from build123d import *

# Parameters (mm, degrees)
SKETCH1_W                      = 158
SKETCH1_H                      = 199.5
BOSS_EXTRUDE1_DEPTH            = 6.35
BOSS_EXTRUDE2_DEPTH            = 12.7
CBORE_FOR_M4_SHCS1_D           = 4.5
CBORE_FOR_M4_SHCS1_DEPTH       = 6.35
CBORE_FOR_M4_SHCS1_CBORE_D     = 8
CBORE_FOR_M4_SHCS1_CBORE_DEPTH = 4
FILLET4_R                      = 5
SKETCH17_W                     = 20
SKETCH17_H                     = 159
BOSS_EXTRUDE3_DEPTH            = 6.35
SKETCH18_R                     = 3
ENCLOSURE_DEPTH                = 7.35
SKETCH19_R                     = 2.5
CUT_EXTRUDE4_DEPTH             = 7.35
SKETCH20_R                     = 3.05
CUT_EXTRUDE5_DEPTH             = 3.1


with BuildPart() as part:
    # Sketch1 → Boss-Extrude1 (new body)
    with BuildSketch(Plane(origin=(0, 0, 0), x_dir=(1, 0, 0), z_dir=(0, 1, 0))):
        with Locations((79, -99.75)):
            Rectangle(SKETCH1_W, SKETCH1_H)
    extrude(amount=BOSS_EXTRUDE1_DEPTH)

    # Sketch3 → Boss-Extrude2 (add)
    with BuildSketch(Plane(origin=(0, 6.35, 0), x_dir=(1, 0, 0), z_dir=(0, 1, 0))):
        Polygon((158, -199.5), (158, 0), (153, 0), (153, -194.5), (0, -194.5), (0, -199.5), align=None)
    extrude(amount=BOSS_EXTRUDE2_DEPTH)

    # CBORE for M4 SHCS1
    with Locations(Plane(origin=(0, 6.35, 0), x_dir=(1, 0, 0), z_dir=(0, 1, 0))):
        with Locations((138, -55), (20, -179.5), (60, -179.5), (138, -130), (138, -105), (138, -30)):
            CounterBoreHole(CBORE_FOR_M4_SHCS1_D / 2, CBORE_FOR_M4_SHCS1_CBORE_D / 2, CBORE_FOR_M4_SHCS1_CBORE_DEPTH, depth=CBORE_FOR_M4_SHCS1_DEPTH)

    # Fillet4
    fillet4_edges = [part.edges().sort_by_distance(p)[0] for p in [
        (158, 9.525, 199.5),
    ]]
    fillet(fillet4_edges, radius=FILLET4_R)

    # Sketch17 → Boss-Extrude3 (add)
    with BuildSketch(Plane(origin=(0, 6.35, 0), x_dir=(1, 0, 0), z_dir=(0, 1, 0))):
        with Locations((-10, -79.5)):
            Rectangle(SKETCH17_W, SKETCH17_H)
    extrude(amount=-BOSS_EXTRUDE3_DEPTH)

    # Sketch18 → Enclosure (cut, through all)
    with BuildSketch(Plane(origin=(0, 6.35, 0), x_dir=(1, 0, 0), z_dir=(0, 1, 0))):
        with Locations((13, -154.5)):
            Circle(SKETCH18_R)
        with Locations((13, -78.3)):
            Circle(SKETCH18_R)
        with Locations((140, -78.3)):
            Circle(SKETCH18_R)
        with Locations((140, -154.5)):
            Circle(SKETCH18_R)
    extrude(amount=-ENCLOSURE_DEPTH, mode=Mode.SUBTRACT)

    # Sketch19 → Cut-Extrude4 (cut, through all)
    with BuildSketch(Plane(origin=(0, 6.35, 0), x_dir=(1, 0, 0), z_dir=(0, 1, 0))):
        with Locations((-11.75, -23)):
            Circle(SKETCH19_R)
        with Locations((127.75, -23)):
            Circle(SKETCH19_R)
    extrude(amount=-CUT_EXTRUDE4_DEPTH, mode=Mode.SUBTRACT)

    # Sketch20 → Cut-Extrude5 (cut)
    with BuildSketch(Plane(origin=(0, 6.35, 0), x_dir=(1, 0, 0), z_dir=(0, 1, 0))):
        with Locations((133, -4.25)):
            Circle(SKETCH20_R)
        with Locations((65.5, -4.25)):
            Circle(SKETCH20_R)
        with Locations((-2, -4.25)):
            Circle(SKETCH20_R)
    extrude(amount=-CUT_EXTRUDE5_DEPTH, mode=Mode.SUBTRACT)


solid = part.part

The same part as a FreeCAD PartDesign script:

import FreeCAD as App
import Part
import Sketcher


def edges_at(feature, points):
    """Names of the edges that pass closest to the given points."""
    edges = feature.Shape.Edges
    near = lambda p: min(range(len(edges)), key=lambda i: edges[i].distToShape(Part.Vertex(*p))[0])
    return sorted({f"Edge{near(p) + 1}" for p in points})

doc = App.newDocument("Part")
body = doc.addObject("PartDesign::Body", "Body")

# Sketch on XZ plane
sketch1 = body.newObject("Sketcher::SketchObject", "Sketch")
sketch1.AttachmentSupport = (doc.getObject("XZ_Plane"), [""])
sketch1.MapMode = "FlatFace"
sketch1.addGeometry([
    Part.LineSegment(App.Vector(0, 0, 0), App.Vector(0, 199.5, 0)),
    Part.LineSegment(App.Vector(0, 199.5, 0), App.Vector(158, 199.5, 0)),
    Part.LineSegment(App.Vector(158, 199.5, 0), App.Vector(158, 0, 0)),
    Part.LineSegment(App.Vector(158, 0, 0), App.Vector(0, 0, 0)),
], False)
sketch1.addConstraint([
    Sketcher.Constraint("Coincident", 0, 2, 1, 1),
    Sketcher.Constraint("Coincident", 1, 2, 2, 1),
    Sketcher.Constraint("Coincident", 2, 2, 3, 1),
    Sketcher.Constraint("Coincident", 3, 2, 0, 1),
    Sketcher.Constraint("Vertical", 0),
    Sketcher.Constraint("Horizontal", 1),
    Sketcher.Constraint("Vertical", 2),
    Sketcher.Constraint("Horizontal", 3),
    Sketcher.Constraint("Coincident", 3, 2, -1, 1),
    Sketcher.Constraint("DistanceX", 1, 1, 1, 2, 158.0),
    Sketcher.Constraint("DistanceY", 0, 1, 0, 2, 199.5),
])
pad1 = body.newObject("PartDesign::Pad", "Pad")
pad1.Profile = sketch1
pad1.Length = 6.35
pad1.Reversed = True

# Sketch on XZ plane
sketch2 = body.newObject("Sketcher::SketchObject", "Sketch001")
sketch2.AttachmentSupport = (doc.getObject("XZ_Plane"), [""])
sketch2.MapMode = "FlatFace"
sketch2.AttachmentOffset = App.Placement(App.Vector(0, 0, -6.35), App.Rotation())
sketch2.addGeometry([
    Part.LineSegment(App.Vector(158, 199.5, 0), App.Vector(158, 0, 0)),  # 0
    Part.LineSegment(App.Vector(158, 0, 0), App.Vector(153, 0, 0)),  # 1
    Part.LineSegment(App.Vector(153, 0, 0), App.Vector(153, 194.5, 0)),  # 2
    Part.LineSegment(App.Vector(153, 194.5, 0), App.Vector(0, 194.5, 0)),  # 3
    Part.LineSegment(App.Vector(0, 194.5, 0), App.Vector(0, 199.5, 0)),  # 4
    Part.LineSegment(App.Vector(0, 199.5, 0), App.Vector(158, 199.5, 0)),  # 5
], False)
sketch2.addConstraint([
    Sketcher.Constraint("Coincident", 0, 2, 1, 1),
    Sketcher.Constraint("Coincident", 1, 2, 2, 1),
    Sketcher.Constraint("Coincident", 2, 2, 3, 1),
    Sketcher.Constraint("Coincident", 3, 2, 4, 1),
    Sketcher.Constraint("Coincident", 4, 2, 5, 1),
    Sketcher.Constraint("Coincident", 5, 2, 0, 1),
    Sketcher.Constraint("Vertical", 0),
    Sketcher.Constraint("Horizontal", 1),
    Sketcher.Constraint("Vertical", 2),
    Sketcher.Constraint("Horizontal", 3),
    Sketcher.Constraint("Vertical", 4),
    Sketcher.Constraint("Horizontal", 5),
    Sketcher.Constraint("PointOnObject", 0, 2, -1),
    Sketcher.Constraint("PointOnObject", 3, 2, -2),
    Sketcher.Constraint("Equal", 1, 4),
    Sketcher.Constraint("DistanceX", 1, 2, 1, 1, 5.0),
    Sketcher.Constraint("DistanceX", 3, 2, 3, 1, 153.0),
    Sketcher.Constraint("DistanceY", 0, 2, 0, 1, 199.5),
])
pad2 = body.newObject("PartDesign::Pad", "Pad001")
pad2.Profile = sketch2
pad2.Length = 12.7
pad2.Reversed = True

# Sketch on XZ plane
sketch3 = body.newObject("Sketcher::SketchObject", "Sketch002")
sketch3.AttachmentSupport = (doc.getObject("XZ_Plane"), [""])
sketch3.MapMode = "FlatFace"
sketch3.AttachmentOffset = App.Placement(App.Vector(0, 0, -6.35), App.Rotation())
sketch3.addGeometry([
    Part.Circle(App.Vector(138, 55, 0), App.Vector(0, 0, 1), 2.25),  # 0
    Part.Circle(App.Vector(20, 179.5, 0), App.Vector(0, 0, 1), 2.25),  # 1
    Part.Circle(App.Vector(60, 179.5, 0), App.Vector(0, 0, 1), 2.25),  # 2
    Part.Circle(App.Vector(138, 130, 0), App.Vector(0, 0, 1), 2.25),  # 3
    Part.Circle(App.Vector(138, 105, 0), App.Vector(0, 0, 1), 2.25),  # 4
    Part.Circle(App.Vector(138, 30, 0), App.Vector(0, 0, 1), 2.25),  # 5
], False)
sketch3.addConstraint([
    Sketcher.Constraint("Equal", 0, 1),
    Sketcher.Constraint("Equal", 1, 2),
    Sketcher.Constraint("Equal", 2, 3),
    Sketcher.Constraint("Equal", 3, 4),
    Sketcher.Constraint("Equal", 4, 5),
    Sketcher.Constraint("Horizontal", 1, 3, 2, 3),
    Sketcher.Constraint("Vertical", 0, 3, 3, 3),
    Sketcher.Constraint("Vertical", 3, 3, 4, 3),
    Sketcher.Constraint("Vertical", 4, 3, 5, 3),
    Sketcher.Constraint("Diameter", 0, 4.5),
    Sketcher.Constraint("DistanceX", -1, 1, 0, 3, 138.0),
    Sketcher.Constraint("DistanceY", -1, 1, 0, 3, 55.0),
    Sketcher.Constraint("DistanceX", -1, 1, 1, 3, 20.0),
    Sketcher.Constraint("DistanceX", -1, 1, 2, 3, 60.0),
    Sketcher.Constraint("DistanceY", -1, 1, 3, 3, 130.0),
    Sketcher.Constraint("DistanceY", -1, 1, 4, 3, 105.0),
    Sketcher.Constraint("DistanceY", -1, 1, 5, 3, 30.0),
    Sketcher.Constraint("DistanceY", -1, 1, 1, 3, 179.5),
])
doc.recompute()
hole = body.newObject("PartDesign::Hole", "Hole")
hole.Profile = sketch3
hole.ThreadType = "None"
hole.Diameter = 4.5
hole.DepthType = "Dimension"
hole.Depth = 6.35
hole.DrillPoint = "Flat"
hole.HoleCutType = "Counterbore"
hole.HoleCutDiameter = 8
hole.HoleCutDepth = 4
hole.Reversed = True
doc.recompute()

fillet = body.newObject("PartDesign::Fillet", "Fillet")
fillet.Base = (hole, edges_at(hole, [(158, 9.525, 199.5)]))
fillet.Radius = 5

# Sketch on XZ plane
sketch4 = body.newObject("Sketcher::SketchObject", "Sketch003")
sketch4.AttachmentSupport = (doc.getObject("XZ_Plane"), [""])
sketch4.MapMode = "FlatFace"
sketch4.AttachmentOffset = App.Placement(App.Vector(0, 0, -6.35), App.Rotation())
sketch4.addGeometry([
    Part.LineSegment(App.Vector(-20, 0, 0), App.Vector(-20, 159, 0)),
    Part.LineSegment(App.Vector(-20, 159, 0), App.Vector(0, 159, 0)),
    Part.LineSegment(App.Vector(0, 159, 0), App.Vector(0, 0, 0)),
    Part.LineSegment(App.Vector(0, 0, 0), App.Vector(-20, 0, 0)),
], False)
sketch4.addConstraint([
    Sketcher.Constraint("Coincident", 0, 2, 1, 1),
    Sketcher.Constraint("Coincident", 1, 2, 2, 1),
    Sketcher.Constraint("Coincident", 2, 2, 3, 1),
    Sketcher.Constraint("Coincident", 3, 2, 0, 1),
    Sketcher.Constraint("Vertical", 0),
    Sketcher.Constraint("Horizontal", 1),
    Sketcher.Constraint("Vertical", 2),
    Sketcher.Constraint("Horizontal", 3),
    Sketcher.Constraint("Coincident", 2, 2, -1, 1),
    Sketcher.Constraint("DistanceX", 1, 1, 1, 2, 20.0),
    Sketcher.Constraint("DistanceY", 0, 1, 0, 2, 159.0),
])
pad3 = body.newObject("PartDesign::Pad", "Pad002")
pad3.Profile = sketch4
pad3.Length = 6.35

# Sketch on XZ plane
sketch5 = body.newObject("Sketcher::SketchObject", "Sketch004")
sketch5.AttachmentSupport = (doc.getObject("XZ_Plane"), [""])
sketch5.MapMode = "FlatFace"
sketch5.AttachmentOffset = App.Placement(App.Vector(0, 0, -6.35), App.Rotation())
sketch5.addGeometry([
    Part.Circle(App.Vector(13, 154.5, 0), App.Vector(0, 0, 1), 3),
    Part.Circle(App.Vector(13, 78.3, 0), App.Vector(0, 0, 1), 3),
    Part.Circle(App.Vector(140, 78.3, 0), App.Vector(0, 0, 1), 3),
    Part.Circle(App.Vector(140, 154.5, 0), App.Vector(0, 0, 1), 3),
], False)
sketch5.addConstraint([
    Sketcher.Constraint("Equal", 0, 1),
    Sketcher.Constraint("Equal", 1, 2),
    Sketcher.Constraint("Equal", 2, 3),
    Sketcher.Constraint("Horizontal", 1, 3, 2, 3),
    Sketcher.Constraint("Horizontal", 0, 3, 3, 3),
    Sketcher.Constraint("Vertical", 0, 3, 1, 3),
    Sketcher.Constraint("Vertical", 2, 3, 3, 3),
    Sketcher.Constraint("Diameter", 0, 6.0),
    Sketcher.Constraint("DistanceX", -1, 1, 0, 3, 13.0),
    Sketcher.Constraint("DistanceX", -1, 1, 2, 3, 140.0),
    Sketcher.Constraint("DistanceY", -1, 1, 0, 3, 154.5),
    Sketcher.Constraint("DistanceY", -1, 1, 1, 3, 78.3),
])
pocket1 = body.newObject("PartDesign::Pocket", "Pocket")
pocket1.Profile = sketch5
pocket1.Type = "ThroughAll"
pocket1.Reversed = True

# Sketch on XZ plane
sketch6 = body.newObject("Sketcher::SketchObject", "Sketch005")
sketch6.AttachmentSupport = (doc.getObject("XZ_Plane"), [""])
sketch6.MapMode = "FlatFace"
sketch6.AttachmentOffset = App.Placement(App.Vector(0, 0, -6.35), App.Rotation())
sketch6.addGeometry([
    Part.Circle(App.Vector(-11.75, 23, 0), App.Vector(0, 0, 1), 2.5),
    Part.Circle(App.Vector(127.75, 23, 0), App.Vector(0, 0, 1), 2.5),
], False)
sketch6.addConstraint([
    Sketcher.Constraint("Equal", 0, 1),
    Sketcher.Constraint("Horizontal", 0, 3, 1, 3),
    Sketcher.Constraint("Diameter", 0, 5.0),
    Sketcher.Constraint("DistanceY", -1, 1, 0, 3, 23.0),
    Sketcher.Constraint("DistanceX", 0, 3, 1, 3, 139.5),
    Sketcher.Constraint("DistanceX", 0, 3, -1, 1, 11.75),
])
pocket2 = body.newObject("PartDesign::Pocket", "Pocket001")
pocket2.Profile = sketch6
pocket2.Type = "ThroughAll"
pocket2.Reversed = True

# Sketch on XZ plane
sketch7 = body.newObject("Sketcher::SketchObject", "Sketch006")
sketch7.AttachmentSupport = (doc.getObject("XZ_Plane"), [""])
sketch7.MapMode = "FlatFace"
sketch7.AttachmentOffset = App.Placement(App.Vector(0, 0, -6.35), App.Rotation())
sketch7.addGeometry([
    Part.Circle(App.Vector(133, 4.25, 0), App.Vector(0, 0, 1), 3.05),
    Part.Circle(App.Vector(65.5, 4.25, 0), App.Vector(0, 0, 1), 3.05),
    Part.Circle(App.Vector(-2, 4.25, 0), App.Vector(0, 0, 1), 3.05),
], False)
sketch7.addConstraint([
    Sketcher.Constraint("Equal", 0, 1),
    Sketcher.Constraint("Equal", 1, 2),
    Sketcher.Constraint("Horizontal", 0, 3, 1, 3),
    Sketcher.Constraint("Horizontal", 1, 3, 2, 3),
    Sketcher.Constraint("Diameter", 0, 6.1),
    Sketcher.Constraint("DistanceX", -1, 1, 0, 3, 133.0),
    Sketcher.Constraint("DistanceX", 2, 3, -1, 1, 2.0),
    Sketcher.Constraint("DistanceX", -1, 1, 1, 3, 65.5),
    Sketcher.Constraint("DistanceY", -1, 1, 0, 3, 4.25),
])
pocket3 = body.newObject("PartDesign::Pocket", "Pocket002")
pocket3.Profile = sketch7
pocket3.Length = 3.1
pocket3.Reversed = True

doc.recompute()
